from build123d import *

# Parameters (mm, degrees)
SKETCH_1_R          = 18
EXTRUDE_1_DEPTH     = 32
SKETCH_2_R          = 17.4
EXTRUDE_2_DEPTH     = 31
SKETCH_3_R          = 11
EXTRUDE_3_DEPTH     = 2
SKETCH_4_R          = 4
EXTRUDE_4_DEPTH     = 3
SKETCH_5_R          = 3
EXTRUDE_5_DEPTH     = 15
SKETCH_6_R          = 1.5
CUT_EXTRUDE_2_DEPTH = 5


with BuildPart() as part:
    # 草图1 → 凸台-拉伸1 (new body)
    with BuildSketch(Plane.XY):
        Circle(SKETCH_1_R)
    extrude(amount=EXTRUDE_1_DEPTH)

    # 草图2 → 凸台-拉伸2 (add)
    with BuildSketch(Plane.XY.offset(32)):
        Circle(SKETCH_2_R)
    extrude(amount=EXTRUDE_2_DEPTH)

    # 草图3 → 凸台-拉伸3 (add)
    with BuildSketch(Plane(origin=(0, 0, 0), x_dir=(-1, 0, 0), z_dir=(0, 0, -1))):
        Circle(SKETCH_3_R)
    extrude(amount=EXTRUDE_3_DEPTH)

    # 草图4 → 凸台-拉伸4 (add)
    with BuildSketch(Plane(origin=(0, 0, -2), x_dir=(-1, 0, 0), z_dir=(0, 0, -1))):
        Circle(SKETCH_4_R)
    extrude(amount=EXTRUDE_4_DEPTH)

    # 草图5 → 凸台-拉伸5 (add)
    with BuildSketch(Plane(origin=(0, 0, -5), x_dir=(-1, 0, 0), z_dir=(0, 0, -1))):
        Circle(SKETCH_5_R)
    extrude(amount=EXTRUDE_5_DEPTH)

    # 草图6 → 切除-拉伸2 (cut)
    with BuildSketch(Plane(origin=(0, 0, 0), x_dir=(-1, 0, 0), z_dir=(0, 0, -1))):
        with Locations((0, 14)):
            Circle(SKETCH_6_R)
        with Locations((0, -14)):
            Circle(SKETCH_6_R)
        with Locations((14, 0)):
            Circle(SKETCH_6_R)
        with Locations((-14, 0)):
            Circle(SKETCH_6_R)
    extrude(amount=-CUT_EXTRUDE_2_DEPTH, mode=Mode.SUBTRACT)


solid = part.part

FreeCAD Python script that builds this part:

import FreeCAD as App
import Part
import Sketcher
from FreeCAD import Vector

doc = App.newDocument("Part")
body = doc.addObject("PartDesign::Body", "Body")

# Sketch on XY plane
sketch1 = body.newObject("Sketcher::SketchObject", "Sketch")
sketch1.AttachmentSupport = (doc.getObject("XY_Plane"), [""])
sketch1.MapMode = "FlatFace"
sketch1.addGeometry(Part.Circle(Vector(0, 0, 0), Vector(0, 0, 1), 18), False)
sketch1.addConstraint([
    Sketcher.Constraint("Coincident", 0, 3, -1, 1),
    Sketcher.Constraint("Diameter", 0, 36.0),
])
pad1 = body.newObject("PartDesign::Pad", "Pad")
pad1.Profile = sketch1
pad1.Length = 32

# Sketch on XY plane
sketch2 = body.newObject("Sketcher::SketchObject", "Sketch001")
sketch2.AttachmentSupport = (doc.getObject("XY_Plane"), [""])
sketch2.MapMode = "FlatFace"
sketch2.AttachmentOffset = App.Placement(Vector(0, 0, 32), App.Rotation())
sketch2.addGeometry(Part.Circle(Vector(0, 0, 0), Vector(0, 0, 1), 17.4), False)
sketch2.addConstraint([
    Sketcher.Constraint("Coincident", 0, 3, -1, 1),
    Sketcher.Constraint("Diameter", 0, 34.8),
])
pad2 = body.newObject("PartDesign::Pad", "Pad001")
pad2.Profile = sketch2
pad2.Length = 31

# Sketch on XY plane
sketch3 = body.newObject("Sketcher::SketchObject", "Sketch002")
sketch3.AttachmentSupport = (doc.getObject("XY_Plane"), [""])
sketch3.MapMode = "FlatFace"
sketch3.addGeometry(Part.Circle(Vector(0, 0, 0), Vector(0, 0, 1), 11), False)
sketch3.addConstraint([
    Sketcher.Constraint("Coincident", 0, 3, -1, 1),
    Sketcher.Constraint("Diameter", 0, 22.0),
])
pad3 = body.newObject("PartDesign::Pad", "Pad002")
pad3.Profile = sketch3
pad3.Length = 2
pad3.Reversed = True

# Sketch on XY plane
sketch4 = body.newObject("Sketcher::SketchObject", "Sketch003")
sketch4.AttachmentSupport = (doc.getObject("XY_Plane"), [""])
sketch4.MapMode = "FlatFace"
sketch4.AttachmentOffset = App.Placement(Vector(0, 0, -2), App.Rotation())
sketch4.addGeometry(Part.Circle(Vector(0, 0, 0), Vector(0, 0, 1), 4), False)
sketch4.addConstraint([
    Sketcher.Constraint("Coincident", 0, 3, -1, 1),
    Sketcher.Constraint("Diameter", 0, 8.0),
])
pad4 = body.newObject("PartDesign::Pad", "Pad003")
pad4.Profile = sketch4
pad4.Length = 3
pad4.Reversed = True

# Sketch on XY plane
sketch5 = body.newObject("Sketcher::SketchObject", "Sketch004")
sketch5.AttachmentSupport = (doc.getObject("XY_Plane"), [""])
sketch5.MapMode = "FlatFace"
sketch5.AttachmentOffset = App.Placement(Vector(0, 0, -5), App.Rotation())
sketch5.addGeometry(Part.Circle(Vector(0, 0, 0), Vector(0, 0, 1), 3), False)
sketch5.addConstraint([
    Sketcher.Constraint("Coincident", 0, 3, -1, 1),
    Sketcher.Constraint("Diameter", 0, 6.0),
])
pad5 = body.newObject("PartDesign::Pad", "Pad004")
pad5.Profile = sketch5
pad5.Length = 15
pad5.Reversed = True

# Sketch on XY plane
sketch6 = body.newObject("Sketcher::SketchObject", "Sketch005")
sketch6.AttachmentSupport = (doc.getObject("XY_Plane"), [""])
sketch6.MapMode = "FlatFace"
sketch6.addGeometry([
    Part.Circle(Vector(0, 14, 0), Vector(0, 0, 1), 1.5),
    Part.Circle(Vector(0, -14, 0), Vector(0, 0, 1), 1.5),
    Part.Circle(Vector(-14, 0, 0), Vector(0, 0, 1), 1.5),
    Part.Circle(Vector(14, 0, 0), Vector(0, 0, 1), 1.5),
], False)
sketch6.addConstraint([
    Sketcher.Constraint("Equal", 0, 1),
    Sketcher.Constraint("Equal", 1, 2),
    Sketcher.Constraint("Equal", 2, 3),
    Sketcher.Constraint("Symmetric", 0, 3, 1, 3, -1, 1),
    Sketcher.Constraint("Symmetric", 2, 3, 3, 3, -1, 1),
    Sketcher.Constraint("PointOnObject", 0, 3, -2),
    Sketcher.Constraint("PointOnObject", 2, 3, -1),
    Sketcher.Constraint("Diameter", 0, 3.0),
    Sketcher.Constraint("DistanceY", -1, 1, 0, 3, 14.0),
    Sketcher.Constraint("DistanceX", 2, 3, -1, 1, 14.0),
])
pocket1 = body.newObject("PartDesign::Pocket", "Pocket")
pocket1.Profile = sketch6
pocket1.Length = 5
pocket1.Reversed = True

doc.recompute()
